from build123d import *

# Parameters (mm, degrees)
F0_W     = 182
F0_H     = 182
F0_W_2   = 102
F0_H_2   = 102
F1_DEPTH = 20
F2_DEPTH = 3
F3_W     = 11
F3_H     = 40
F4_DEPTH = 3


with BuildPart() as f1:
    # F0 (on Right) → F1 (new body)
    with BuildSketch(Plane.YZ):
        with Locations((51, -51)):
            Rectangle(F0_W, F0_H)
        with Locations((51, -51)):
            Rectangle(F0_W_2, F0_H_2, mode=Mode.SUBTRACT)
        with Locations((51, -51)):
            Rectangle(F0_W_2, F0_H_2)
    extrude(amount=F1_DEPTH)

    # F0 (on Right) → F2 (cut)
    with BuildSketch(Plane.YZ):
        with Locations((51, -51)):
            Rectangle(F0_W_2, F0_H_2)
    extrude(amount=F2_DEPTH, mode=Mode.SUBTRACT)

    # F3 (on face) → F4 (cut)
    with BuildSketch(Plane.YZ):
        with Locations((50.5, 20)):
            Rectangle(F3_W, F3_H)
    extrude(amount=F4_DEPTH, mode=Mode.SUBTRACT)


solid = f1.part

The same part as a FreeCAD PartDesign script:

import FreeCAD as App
import Part
import Sketcher
from FreeCAD import Vector

doc = App.newDocument("Part")
body = doc.addObject("PartDesign::Body", "Body")

# Sketch on YZ plane
sketch1 = body.newObject("Sketcher::SketchObject", "Sketch")
sketch1.AttachmentSupport = (doc.getObject("YZ_Plane"), [""])
sketch1.MapMode = "FlatFace"
sketch1.addGeometry([
    Part.LineSegment(Vector(-40, 40, 0), Vector(-40, -142, 0)),
    Part.LineSegment(Vector(-40, -142, 0), Vector(142, -142, 0)),
    Part.LineSegment(Vector(142, -142, 0), Vector(142, 40, 0)),
    Part.LineSegment(Vector(142, 40, 0), Vector(-40, 40, 0)),
], False)
sketch1.addConstraint([
    Sketcher.Constraint("Coincident", 0, 2, 1, 1),
    Sketcher.Constraint("Coincident", 1, 2, 2, 1),
    Sketcher.Constraint("Coincident", 2, 2, 3, 1),
    Sketcher.Constraint("Coincident", 3, 2, 0, 1),
    Sketcher.Constraint("Vertical", 0),
    Sketcher.Constraint("Horizontal", 1),
    Sketcher.Constraint("Vertical", 2),
    Sketcher.Constraint("Horizontal", 3),
    Sketcher.Constraint("Equal", 3, 0),
    Sketcher.Constraint("DistanceX", 1, 1, 1, 2, 182.0),
    Sketcher.Constraint("DistanceX", 0, 2, -1, 1, 40.0),
    Sketcher.Constraint("DistanceY", 0, 2, -1, 1, 142.0),
])
pad1 = body.newObject("PartDesign::Pad", "Pad")
pad1.Profile = sketch1
pad1.Length = 20

# Sketch on YZ plane
sketch2 = body.newObject("Sketcher::SketchObject", "Sketch001")
sketch2.AttachmentSupport = (doc.getObject("YZ_Plane"), [""])
sketch2.MapMode = "FlatFace"
sketch2.addGeometry([
    Part.LineSegment(Vector(0, 0, 0), Vector(0, -102, 0)),
    Part.LineSegment(Vector(0, -102, 0), Vector(102, -102, 0)),
    Part.LineSegment(Vector(102, -102, 0), Vector(102, 0, 0)),
    Part.LineSegment(Vector(102, 0, 0), Vector(0, 0, 0)),
], False)
sketch2.addConstraint([
    Sketcher.Constraint("Coincident", 0, 2, 1, 1),
    Sketcher.Constraint("Coincident", 1, 2, 2, 1),
    Sketcher.Constraint("Coincident", 2, 2, 3, 1),
    Sketcher.Constraint("Coincident", 3, 2, 0, 1),
    Sketcher.Constraint("Vertical", 0),
    Sketcher.Constraint("Horizontal", 1),
    Sketcher.Constraint("Vertical", 2),
    Sketcher.Constraint("Horizontal", 3),
    Sketcher.Constraint("Coincident", 3, 2, -1, 1),
    Sketcher.Constraint("Equal", 3, 0),
    Sketcher.Constraint("DistanceX", 1, 1, 1, 2, 102.0),
])
pocket1 = body.newObject("PartDesign::Pocket", "Pocket")
pocket1.Profile = sketch2
pocket1.Length = 3
pocket1.Reversed = True

# Sketch on YZ plane
sketch3 = body.newObject("Sketcher::SketchObject", "Sketch002")
sketch3.AttachmentSupport = (doc.getObject("YZ_Plane"), [""])
sketch3.MapMode = "FlatFace"
sketch3.addGeometry([
    Part.LineSegment(Vector(45, 40, 0), Vector(45, 0, 0)),
    Part.LineSegment(Vector(45, 0, 0), Vector(56, 0, 0)),
    Part.LineSegment(Vector(56, 0, 0), Vector(56, 40, 0)),
    Part.LineSegment(Vector(56, 40, 0), Vector(45, 40, 0)),
], False)
sketch3.addConstraint([
    Sketcher.Constraint("Coincident", 0, 2, 1, 1),
    Sketcher.Constraint("Coincident", 1, 2, 2, 1),
    Sketcher.Constraint("Coincident", 2, 2, 3, 1),
    Sketcher.Constraint("Coincident", 3, 2, 0, 1),
    Sketcher.Constraint("Vertical", 0),
    Sketcher.Constraint("Horizontal", 1),
    Sketcher.Constraint("Vertical", 2),
    Sketcher.Constraint("Horizontal", 3),
    Sketcher.Constraint("PointOnObject", 0, 2, -1),
    Sketcher.Constraint("DistanceX", 1, 1, 1, 2, 11.0),
    Sketcher.Constraint("DistanceY", 0, 2, 0, 1, 40.0),
    Sketcher.Constraint("DistanceX", -1, 1, 0, 2, 45.0),
])
pocket2 = body.newObject("PartDesign::Pocket", "Pocket001")
pocket2.Profile = sketch3
pocket2.Length = 3
pocket2.Reversed = True

doc.recompute()
